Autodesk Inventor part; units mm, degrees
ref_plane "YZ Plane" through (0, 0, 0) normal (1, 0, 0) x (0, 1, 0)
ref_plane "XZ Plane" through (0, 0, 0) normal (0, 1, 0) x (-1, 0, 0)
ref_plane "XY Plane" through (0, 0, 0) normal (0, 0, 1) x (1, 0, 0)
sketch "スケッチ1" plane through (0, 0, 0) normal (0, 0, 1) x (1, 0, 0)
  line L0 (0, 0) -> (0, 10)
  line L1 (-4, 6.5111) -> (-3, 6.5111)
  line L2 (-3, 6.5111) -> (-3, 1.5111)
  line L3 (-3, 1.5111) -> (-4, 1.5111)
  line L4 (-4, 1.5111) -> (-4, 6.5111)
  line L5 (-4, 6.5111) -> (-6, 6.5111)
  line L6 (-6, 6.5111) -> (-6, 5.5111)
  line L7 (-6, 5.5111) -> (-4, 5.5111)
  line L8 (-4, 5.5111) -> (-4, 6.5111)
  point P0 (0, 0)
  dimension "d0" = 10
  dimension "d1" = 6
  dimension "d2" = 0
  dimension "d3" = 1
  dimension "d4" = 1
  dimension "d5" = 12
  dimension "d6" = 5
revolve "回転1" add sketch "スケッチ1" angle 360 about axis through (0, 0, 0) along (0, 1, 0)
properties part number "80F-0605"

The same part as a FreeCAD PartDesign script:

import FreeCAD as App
import Part
import Sketcher
from FreeCAD import Vector


def add_polygon(sketch, points):
    """Adds a closed chain of lines whose ends are joined by coincident constraints."""
    first, n = sketch.GeometryCount, len(points)
    for a, b in zip(points, points[1:] + points[:1]):
        sketch.addGeometry(Part.LineSegment(App.Vector(*a, 0), App.Vector(*b, 0)), False)
    for i in range(n):
        sketch.addConstraint(Sketcher.Constraint("Coincident", first + i, 2, first + (i + 1) % n, 1))

doc = App.newDocument("Part")
body = doc.addObject("PartDesign::Body", "Body")

# Sketch on XY plane
sketch1 = body.newObject("Sketcher::SketchObject", "Sketch")
sketch1.AttachmentSupport = (doc.getObject("XY_Plane"), [""])
sketch1.MapMode = "FlatFace"
add_polygon(sketch1, [(-3, 6.5), (-6, 6.5), (-6, 5.5), (-4, 5.5), (-4, 1.5), (-3, 1.5)])  # lines 0-5
sketch1.addConstraint([
    Sketcher.Constraint("Horizontal", 0),
    Sketcher.Constraint("Vertical", 1),
    Sketcher.Constraint("Horizontal", 2),
    Sketcher.Constraint("Vertical", 3),
    Sketcher.Constraint("Horizontal", 4),
    Sketcher.Constraint("Vertical", 5),
    Sketcher.Constraint("Equal", 4, 1),
    Sketcher.Constraint("DistanceX", 4, 1, 4, 2, 1.0),
    Sketcher.Constraint("DistanceY", 5, 1, 5, 2, 5.0),
    Sketcher.Constraint("DistanceX", 0, 2, -1, 1, 6.0),
    Sketcher.Constraint("DistanceX", 0, 2, 0, 1, 3.0),
    Sketcher.Constraint("DistanceY", -1, 1, 0, 2, 6.511),
])
revolution = body.newObject("PartDesign::Revolution", "Revolution")
revolution.Profile = sketch1
revolution.ReferenceAxis = (sketch1, ["V_Axis"])
revolution.Angle = 360

doc.recompute()
